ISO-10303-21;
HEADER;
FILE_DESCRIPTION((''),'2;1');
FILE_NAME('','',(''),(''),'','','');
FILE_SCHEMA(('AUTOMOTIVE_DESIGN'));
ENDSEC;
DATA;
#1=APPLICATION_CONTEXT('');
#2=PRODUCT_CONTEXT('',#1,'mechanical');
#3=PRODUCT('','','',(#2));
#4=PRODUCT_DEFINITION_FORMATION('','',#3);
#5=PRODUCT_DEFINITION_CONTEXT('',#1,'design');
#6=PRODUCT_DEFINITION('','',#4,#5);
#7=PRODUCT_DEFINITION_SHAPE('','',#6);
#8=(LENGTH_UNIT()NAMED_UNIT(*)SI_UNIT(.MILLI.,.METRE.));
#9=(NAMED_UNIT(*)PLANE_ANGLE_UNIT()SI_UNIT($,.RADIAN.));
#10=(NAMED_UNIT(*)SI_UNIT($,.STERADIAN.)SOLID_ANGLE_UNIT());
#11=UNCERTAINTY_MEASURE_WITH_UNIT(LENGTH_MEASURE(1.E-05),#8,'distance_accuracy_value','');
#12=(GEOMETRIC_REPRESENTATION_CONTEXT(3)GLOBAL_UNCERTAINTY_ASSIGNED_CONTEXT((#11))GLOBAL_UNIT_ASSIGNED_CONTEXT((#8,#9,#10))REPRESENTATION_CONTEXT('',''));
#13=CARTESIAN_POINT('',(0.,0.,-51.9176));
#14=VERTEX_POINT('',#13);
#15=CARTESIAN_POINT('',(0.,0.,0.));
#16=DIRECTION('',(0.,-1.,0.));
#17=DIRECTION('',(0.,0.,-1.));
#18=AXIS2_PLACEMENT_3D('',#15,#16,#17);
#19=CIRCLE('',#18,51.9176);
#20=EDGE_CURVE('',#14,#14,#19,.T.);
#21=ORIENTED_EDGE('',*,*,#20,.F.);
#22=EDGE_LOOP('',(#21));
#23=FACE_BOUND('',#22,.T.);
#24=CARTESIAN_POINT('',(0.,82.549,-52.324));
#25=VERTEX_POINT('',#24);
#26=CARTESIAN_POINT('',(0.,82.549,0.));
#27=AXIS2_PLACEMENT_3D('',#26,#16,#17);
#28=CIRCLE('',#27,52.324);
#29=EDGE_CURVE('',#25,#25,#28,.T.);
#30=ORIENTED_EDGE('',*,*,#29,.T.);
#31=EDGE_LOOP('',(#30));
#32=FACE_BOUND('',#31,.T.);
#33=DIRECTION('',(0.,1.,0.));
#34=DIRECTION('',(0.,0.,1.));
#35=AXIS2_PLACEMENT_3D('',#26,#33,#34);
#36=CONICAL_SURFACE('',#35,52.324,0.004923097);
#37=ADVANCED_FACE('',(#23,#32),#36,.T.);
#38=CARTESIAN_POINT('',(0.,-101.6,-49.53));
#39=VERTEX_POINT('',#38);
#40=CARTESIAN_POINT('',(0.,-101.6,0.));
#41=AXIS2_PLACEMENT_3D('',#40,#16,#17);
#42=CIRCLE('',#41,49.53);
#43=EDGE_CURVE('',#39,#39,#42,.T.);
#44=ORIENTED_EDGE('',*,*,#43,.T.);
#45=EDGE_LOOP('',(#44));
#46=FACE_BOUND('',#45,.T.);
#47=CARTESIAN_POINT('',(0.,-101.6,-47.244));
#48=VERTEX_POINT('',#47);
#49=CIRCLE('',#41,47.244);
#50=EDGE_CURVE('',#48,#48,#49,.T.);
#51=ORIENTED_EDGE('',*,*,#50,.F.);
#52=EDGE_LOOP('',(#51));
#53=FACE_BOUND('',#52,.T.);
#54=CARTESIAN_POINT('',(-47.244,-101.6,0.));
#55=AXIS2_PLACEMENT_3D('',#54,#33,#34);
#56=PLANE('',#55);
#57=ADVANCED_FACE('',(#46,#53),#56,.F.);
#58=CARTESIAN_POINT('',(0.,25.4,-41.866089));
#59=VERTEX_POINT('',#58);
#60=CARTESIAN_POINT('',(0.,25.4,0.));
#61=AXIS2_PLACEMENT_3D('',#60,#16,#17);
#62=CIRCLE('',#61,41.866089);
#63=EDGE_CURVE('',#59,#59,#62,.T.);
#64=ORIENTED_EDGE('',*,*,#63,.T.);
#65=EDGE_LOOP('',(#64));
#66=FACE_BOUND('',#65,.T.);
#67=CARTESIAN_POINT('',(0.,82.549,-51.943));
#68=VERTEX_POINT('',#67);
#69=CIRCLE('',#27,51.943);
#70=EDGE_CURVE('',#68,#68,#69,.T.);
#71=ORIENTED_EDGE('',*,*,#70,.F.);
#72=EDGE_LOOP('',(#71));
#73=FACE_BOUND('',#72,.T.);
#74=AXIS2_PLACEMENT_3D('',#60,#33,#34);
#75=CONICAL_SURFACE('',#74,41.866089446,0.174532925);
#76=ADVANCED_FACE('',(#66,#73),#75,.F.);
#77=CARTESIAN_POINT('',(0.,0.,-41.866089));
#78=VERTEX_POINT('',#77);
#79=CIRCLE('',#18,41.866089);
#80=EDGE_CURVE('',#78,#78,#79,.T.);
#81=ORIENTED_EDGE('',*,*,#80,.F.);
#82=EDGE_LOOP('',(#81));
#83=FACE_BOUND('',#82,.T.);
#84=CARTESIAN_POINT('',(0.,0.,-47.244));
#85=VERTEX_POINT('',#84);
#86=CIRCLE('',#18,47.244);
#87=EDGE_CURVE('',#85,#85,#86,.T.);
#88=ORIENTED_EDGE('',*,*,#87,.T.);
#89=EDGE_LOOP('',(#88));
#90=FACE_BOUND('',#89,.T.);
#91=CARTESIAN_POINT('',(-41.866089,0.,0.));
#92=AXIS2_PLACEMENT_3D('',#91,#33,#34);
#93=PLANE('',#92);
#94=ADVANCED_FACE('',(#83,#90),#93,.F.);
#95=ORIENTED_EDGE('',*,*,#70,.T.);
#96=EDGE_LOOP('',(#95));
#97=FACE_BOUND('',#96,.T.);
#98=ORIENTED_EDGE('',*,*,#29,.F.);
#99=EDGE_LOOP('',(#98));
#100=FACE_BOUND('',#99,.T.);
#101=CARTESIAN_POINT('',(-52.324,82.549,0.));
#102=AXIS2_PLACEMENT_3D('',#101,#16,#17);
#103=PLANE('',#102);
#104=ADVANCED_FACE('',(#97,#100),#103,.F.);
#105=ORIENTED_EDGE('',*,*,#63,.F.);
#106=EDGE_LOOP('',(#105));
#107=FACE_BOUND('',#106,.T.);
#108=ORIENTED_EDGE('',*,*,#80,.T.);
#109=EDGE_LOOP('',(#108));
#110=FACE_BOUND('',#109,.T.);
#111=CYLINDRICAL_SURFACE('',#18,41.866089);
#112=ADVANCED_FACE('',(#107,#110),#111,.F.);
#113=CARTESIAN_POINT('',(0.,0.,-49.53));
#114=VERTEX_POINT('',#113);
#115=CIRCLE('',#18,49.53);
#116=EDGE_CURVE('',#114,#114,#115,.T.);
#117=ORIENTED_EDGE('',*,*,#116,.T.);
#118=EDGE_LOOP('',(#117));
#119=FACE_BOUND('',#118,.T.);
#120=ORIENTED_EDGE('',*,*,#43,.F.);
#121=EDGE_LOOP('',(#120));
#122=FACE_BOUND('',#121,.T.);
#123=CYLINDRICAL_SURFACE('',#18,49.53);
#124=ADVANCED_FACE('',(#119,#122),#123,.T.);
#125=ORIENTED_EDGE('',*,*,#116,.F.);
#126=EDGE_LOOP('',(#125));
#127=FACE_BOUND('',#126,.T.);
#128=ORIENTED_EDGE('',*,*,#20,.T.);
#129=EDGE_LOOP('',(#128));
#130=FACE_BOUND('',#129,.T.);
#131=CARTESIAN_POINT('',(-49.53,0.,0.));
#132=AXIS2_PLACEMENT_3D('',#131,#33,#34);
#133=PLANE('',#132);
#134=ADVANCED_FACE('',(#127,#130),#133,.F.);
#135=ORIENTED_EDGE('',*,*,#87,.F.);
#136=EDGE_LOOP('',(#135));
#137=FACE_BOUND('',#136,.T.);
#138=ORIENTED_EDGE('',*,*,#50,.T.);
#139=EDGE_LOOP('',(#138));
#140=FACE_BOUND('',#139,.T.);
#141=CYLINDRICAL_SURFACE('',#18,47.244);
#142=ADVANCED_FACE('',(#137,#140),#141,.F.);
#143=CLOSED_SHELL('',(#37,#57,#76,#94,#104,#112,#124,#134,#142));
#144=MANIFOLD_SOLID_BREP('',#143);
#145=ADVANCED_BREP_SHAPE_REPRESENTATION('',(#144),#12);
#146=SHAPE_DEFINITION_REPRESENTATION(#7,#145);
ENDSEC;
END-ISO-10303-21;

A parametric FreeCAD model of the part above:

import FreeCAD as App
import Part
import Sketcher
from FreeCAD import Vector
Q = App.Units.Quantity

doc = App.newDocument("Part")
body = doc.addObject("PartDesign::Body", "Body")

# Sketch on XY plane
sketch1 = body.newObject("Sketcher::SketchObject", "Sketch")
sketch1.AttachmentSupport = (doc.getObject("XY_Plane"), [""])
sketch1.MapMode = "FlatFace"
sketch1.addGeometry([
    Part.LineSegment(Vector(-51.92, 0, 0), Vector(-49.53, 0, 0)),  # 0
    Part.LineSegment(Vector(-49.53, 0, 0), Vector(-49.53, -101.6, 0)),  # 1
    Part.LineSegment(Vector(-49.53, -101.6, 0), Vector(-47.24, -101.6, 0)),  # 2
    Part.LineSegment(Vector(-47.24, -101.6, 0), Vector(-47.24, 0, 0)),  # 3
    Part.LineSegment(Vector(-47.24, 0, 0), Vector(-41.87, 0, 0)),  # 4
    Part.LineSegment(Vector(-41.87, 0, 0), Vector(-41.87, 25.4, 0)),  # 5
    Part.LineSegment(Vector(-41.87, 25.4, 0), Vector(-51.94, 82.55, 0)),  # 6
    Part.LineSegment(Vector(-51.94, 82.55, 0), Vector(-52.32, 82.55, 0)),  # 7
    Part.LineSegment(Vector(-52.32, 82.55, 0), Vector(-51.92, 0, 0)),  # 8
], False)
sketch1.addConstraint([
    Sketcher.Constraint("Coincident", 0, 2, 1, 1),
    Sketcher.Constraint("Coincident", 1, 2, 2, 1),
    Sketcher.Constraint("Coincident", 2, 2, 3, 1),
    Sketcher.Constraint("Coincident", 3, 2, 4, 1),
    Sketcher.Constraint("Coincident", 4, 2, 5, 1),
    Sketcher.Constraint("Coincident", 5, 2, 6, 1),
    Sketcher.Constraint("Coincident", 6, 2, 7, 1),
    Sketcher.Constraint("Coincident", 7, 2, 8, 1),
    Sketcher.Constraint("Coincident", 8, 2, 0, 1),
    Sketcher.Constraint("Horizontal", 0),
    Sketcher.Constraint("Vertical", 1),
    Sketcher.Constraint("Horizontal", 2),
    Sketcher.Constraint("Vertical", 3),
    Sketcher.Constraint("Horizontal", 4),
    Sketcher.Constraint("Vertical", 5),
    Sketcher.Constraint("Horizontal", 7),
    Sketcher.Constraint("PointOnObject", 0, 2, -1),
    Sketcher.Constraint("PointOnObject", 3, 2, -1),
    Sketcher.Constraint("DistanceY", 1, 2, 1, 1, Q("4 in")),
    Sketcher.Constraint("DistanceY", 5, 1, 5, 2, Q("1 in")),
    Sketcher.Constraint("Angle", 6, Q("100 deg")),
    Sketcher.Constraint("DistanceX", 2, 1, 2, 2, Q("0.09 in")),
    Sketcher.Constraint("DistanceX", 7, 2, 3, 2, Q("0.2 in")),
    Sketcher.Constraint("Distance", 8, Q("3.25 in")),
    Sketcher.Constraint("DistanceX", 0, 1, 0, 2, Q("0.094 in")),
    Sketcher.Constraint("DistanceX", 7, 2, 7, 1, Q("0.015 in")),
    Sketcher.Constraint("DistanceX", 0, 2, -1, 1, Q("1.95 in")),
])
revolution = body.newObject("PartDesign::Revolution", "Revolution")
revolution.Profile = sketch1
revolution.ReferenceAxis = (sketch1, ["V_Axis"])
revolution.Angle = 360

doc.recompute()
